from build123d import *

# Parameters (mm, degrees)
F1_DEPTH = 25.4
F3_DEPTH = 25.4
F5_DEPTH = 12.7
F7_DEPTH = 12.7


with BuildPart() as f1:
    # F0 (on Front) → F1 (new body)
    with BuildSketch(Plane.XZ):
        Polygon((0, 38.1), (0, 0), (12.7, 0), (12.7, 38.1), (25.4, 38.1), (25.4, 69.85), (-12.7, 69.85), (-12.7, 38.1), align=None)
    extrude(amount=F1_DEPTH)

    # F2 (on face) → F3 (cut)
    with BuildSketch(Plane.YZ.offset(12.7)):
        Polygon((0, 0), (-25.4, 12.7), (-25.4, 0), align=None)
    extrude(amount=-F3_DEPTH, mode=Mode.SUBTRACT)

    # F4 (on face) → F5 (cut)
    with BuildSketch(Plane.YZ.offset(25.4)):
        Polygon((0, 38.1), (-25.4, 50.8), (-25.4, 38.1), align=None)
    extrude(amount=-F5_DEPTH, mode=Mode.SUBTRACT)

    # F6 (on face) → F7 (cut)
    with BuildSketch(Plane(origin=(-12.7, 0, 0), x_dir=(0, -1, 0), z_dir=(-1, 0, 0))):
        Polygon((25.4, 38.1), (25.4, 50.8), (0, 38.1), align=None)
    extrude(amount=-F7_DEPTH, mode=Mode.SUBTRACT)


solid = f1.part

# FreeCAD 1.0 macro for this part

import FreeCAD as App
import Part
import Sketcher
Q = App.Units.Quantity


def add_polygon(sketch, points):
    """Adds a closed chain of lines whose ends are joined by coincident constraints."""
    first, n = sketch.GeometryCount, len(points)
    for a, b in zip(points, points[1:] + points[:1]):
        sketch.addGeometry(Part.LineSegment(App.Vector(*a, 0), App.Vector(*b, 0)), False)
    for i in range(n):
        sketch.addConstraint(Sketcher.Constraint("Coincident", first + i, 2, first + (i + 1) % n, 1))

doc = App.newDocument("Part")
body = doc.addObject("PartDesign::Body", "Body")

# Sketch on XZ plane
sketch1 = body.newObject("Sketcher::SketchObject", "Sketch")
sketch1.AttachmentSupport = (doc.getObject("XZ_Plane"), [""])
sketch1.MapMode = "FlatFace"
add_polygon(sketch1, [(0, 38), (0, 0), (13, 0), (13, 38), (25, 38), (25, 70), (-13, 70), (-13, 38)])  # lines 0-7
sketch1.addConstraint([
    Sketcher.Constraint("Vertical", 0),
    Sketcher.Constraint("Horizontal", 1),
    Sketcher.Constraint("Vertical", 2),
    Sketcher.Constraint("Horizontal", 3),
    Sketcher.Constraint("Vertical", 4),
    Sketcher.Constraint("Horizontal", 5),
    Sketcher.Constraint("Vertical", 6),
    Sketcher.Constraint("Horizontal", 7),
    Sketcher.Constraint("Coincident", 0, 2, -1, 1),
    Sketcher.Constraint("Symmetric", 2, 2, 6, 2, -2),
    Sketcher.Constraint("Equal", 1, 3),
    Sketcher.Constraint("Equal", 5, 0),
    Sketcher.Constraint("DistanceX", 1, 1, 1, 2, Q("0.5 in")),
    Sketcher.Constraint("DistanceY", 4, 1, 4, 2, Q("1.25 in")),
])
pad1 = body.newObject("PartDesign::Pad", "Pad")
pad1.Profile = sketch1
pad1.Length = Q("1 in")

# Sketch on YZ plane
sketch2 = body.newObject("Sketcher::SketchObject", "Sketch001")
sketch2.AttachmentSupport = (doc.getObject("YZ_Plane"), [""])
sketch2.MapMode = "FlatFace"
sketch2.AttachmentOffset = App.Placement(App.Vector(0, 0, 0.5 * 25.4), App.Rotation())
add_polygon(sketch2, [(0, 0), (-25, 13), (-25, 0)])  # lines 0-2
sketch2.addConstraint([
    Sketcher.Constraint("Vertical", 1),
    Sketcher.Constraint("Horizontal", 2),
    Sketcher.Constraint("Coincident", 2, 2, -1, 1),
    Sketcher.Constraint("DistanceX", 2, 1, 2, 2, Q("1 in")),
    Sketcher.Constraint("DistanceY", 1, 2, 1, 1, Q("0.5 in")),
])
pocket1 = body.newObject("PartDesign::Pocket", "Pocket")
pocket1.Profile = sketch2
pocket1.Length = Q("1 in")

# Sketch on YZ plane
sketch3 = body.newObject("Sketcher::SketchObject", "Sketch002")
sketch3.AttachmentSupport = (doc.getObject("YZ_Plane"), [""])
sketch3.MapMode = "FlatFace"
sketch3.AttachmentOffset = App.Placement(App.Vector(0, 0, 1 * 25.4), App.Rotation())
add_polygon(sketch3, [(0, 38), (-25, 51), (-25, 38)])  # lines 0-2
sketch3.addConstraint([
    Sketcher.Constraint("Vertical", 1),
    Sketcher.Constraint("Horizontal", 2),
    Sketcher.Constraint("PointOnObject", 2, 2, -2),
    Sketcher.Constraint("DistanceX", 2, 1, 2, 2, Q("1 in")),
    Sketcher.Constraint("DistanceY", 1, 2, 1, 1, Q("0.5 in")),
    Sketcher.Constraint("DistanceY", -1, 1, 0, 2, Q("2 in")),
])
pocket2 = body.newObject("PartDesign::Pocket", "Pocket001")
pocket2.Profile = sketch3
pocket2.Length = Q("0.5 in")

# Sketch on YZ plane
sketch4 = body.newObject("Sketcher::SketchObject", "Sketch003")
sketch4.AttachmentSupport = (doc.getObject("YZ_Plane"), [""])
sketch4.MapMode = "FlatFace"
sketch4.AttachmentOffset = App.Placement(App.Vector(0, 0, -0.5 * 25.4), App.Rotation())
add_polygon(sketch4, [(-25, 38), (-25, 51), (0, 38)])  # lines 0-2
sketch4.addConstraint([
    Sketcher.Constraint("Vertical", 0),
    Sketcher.Constraint("Horizontal", 2),
    Sketcher.Constraint("PointOnObject", 1, 2, -2),
    Sketcher.Constraint("DistanceX", 2, 2, 2, 1, Q("1 in")),
    Sketcher.Constraint("DistanceY", 0, 1, 0, 2, Q("0.5 in")),
    Sketcher.Constraint("DistanceY", -1, 1, 0, 2, Q("2 in")),
])
pocket3 = body.newObject("PartDesign::Pocket", "Pocket002")
pocket3.Profile = sketch4
pocket3.Length = Q("0.5 in")
pocket3.Reversed = True

doc.recompute()
